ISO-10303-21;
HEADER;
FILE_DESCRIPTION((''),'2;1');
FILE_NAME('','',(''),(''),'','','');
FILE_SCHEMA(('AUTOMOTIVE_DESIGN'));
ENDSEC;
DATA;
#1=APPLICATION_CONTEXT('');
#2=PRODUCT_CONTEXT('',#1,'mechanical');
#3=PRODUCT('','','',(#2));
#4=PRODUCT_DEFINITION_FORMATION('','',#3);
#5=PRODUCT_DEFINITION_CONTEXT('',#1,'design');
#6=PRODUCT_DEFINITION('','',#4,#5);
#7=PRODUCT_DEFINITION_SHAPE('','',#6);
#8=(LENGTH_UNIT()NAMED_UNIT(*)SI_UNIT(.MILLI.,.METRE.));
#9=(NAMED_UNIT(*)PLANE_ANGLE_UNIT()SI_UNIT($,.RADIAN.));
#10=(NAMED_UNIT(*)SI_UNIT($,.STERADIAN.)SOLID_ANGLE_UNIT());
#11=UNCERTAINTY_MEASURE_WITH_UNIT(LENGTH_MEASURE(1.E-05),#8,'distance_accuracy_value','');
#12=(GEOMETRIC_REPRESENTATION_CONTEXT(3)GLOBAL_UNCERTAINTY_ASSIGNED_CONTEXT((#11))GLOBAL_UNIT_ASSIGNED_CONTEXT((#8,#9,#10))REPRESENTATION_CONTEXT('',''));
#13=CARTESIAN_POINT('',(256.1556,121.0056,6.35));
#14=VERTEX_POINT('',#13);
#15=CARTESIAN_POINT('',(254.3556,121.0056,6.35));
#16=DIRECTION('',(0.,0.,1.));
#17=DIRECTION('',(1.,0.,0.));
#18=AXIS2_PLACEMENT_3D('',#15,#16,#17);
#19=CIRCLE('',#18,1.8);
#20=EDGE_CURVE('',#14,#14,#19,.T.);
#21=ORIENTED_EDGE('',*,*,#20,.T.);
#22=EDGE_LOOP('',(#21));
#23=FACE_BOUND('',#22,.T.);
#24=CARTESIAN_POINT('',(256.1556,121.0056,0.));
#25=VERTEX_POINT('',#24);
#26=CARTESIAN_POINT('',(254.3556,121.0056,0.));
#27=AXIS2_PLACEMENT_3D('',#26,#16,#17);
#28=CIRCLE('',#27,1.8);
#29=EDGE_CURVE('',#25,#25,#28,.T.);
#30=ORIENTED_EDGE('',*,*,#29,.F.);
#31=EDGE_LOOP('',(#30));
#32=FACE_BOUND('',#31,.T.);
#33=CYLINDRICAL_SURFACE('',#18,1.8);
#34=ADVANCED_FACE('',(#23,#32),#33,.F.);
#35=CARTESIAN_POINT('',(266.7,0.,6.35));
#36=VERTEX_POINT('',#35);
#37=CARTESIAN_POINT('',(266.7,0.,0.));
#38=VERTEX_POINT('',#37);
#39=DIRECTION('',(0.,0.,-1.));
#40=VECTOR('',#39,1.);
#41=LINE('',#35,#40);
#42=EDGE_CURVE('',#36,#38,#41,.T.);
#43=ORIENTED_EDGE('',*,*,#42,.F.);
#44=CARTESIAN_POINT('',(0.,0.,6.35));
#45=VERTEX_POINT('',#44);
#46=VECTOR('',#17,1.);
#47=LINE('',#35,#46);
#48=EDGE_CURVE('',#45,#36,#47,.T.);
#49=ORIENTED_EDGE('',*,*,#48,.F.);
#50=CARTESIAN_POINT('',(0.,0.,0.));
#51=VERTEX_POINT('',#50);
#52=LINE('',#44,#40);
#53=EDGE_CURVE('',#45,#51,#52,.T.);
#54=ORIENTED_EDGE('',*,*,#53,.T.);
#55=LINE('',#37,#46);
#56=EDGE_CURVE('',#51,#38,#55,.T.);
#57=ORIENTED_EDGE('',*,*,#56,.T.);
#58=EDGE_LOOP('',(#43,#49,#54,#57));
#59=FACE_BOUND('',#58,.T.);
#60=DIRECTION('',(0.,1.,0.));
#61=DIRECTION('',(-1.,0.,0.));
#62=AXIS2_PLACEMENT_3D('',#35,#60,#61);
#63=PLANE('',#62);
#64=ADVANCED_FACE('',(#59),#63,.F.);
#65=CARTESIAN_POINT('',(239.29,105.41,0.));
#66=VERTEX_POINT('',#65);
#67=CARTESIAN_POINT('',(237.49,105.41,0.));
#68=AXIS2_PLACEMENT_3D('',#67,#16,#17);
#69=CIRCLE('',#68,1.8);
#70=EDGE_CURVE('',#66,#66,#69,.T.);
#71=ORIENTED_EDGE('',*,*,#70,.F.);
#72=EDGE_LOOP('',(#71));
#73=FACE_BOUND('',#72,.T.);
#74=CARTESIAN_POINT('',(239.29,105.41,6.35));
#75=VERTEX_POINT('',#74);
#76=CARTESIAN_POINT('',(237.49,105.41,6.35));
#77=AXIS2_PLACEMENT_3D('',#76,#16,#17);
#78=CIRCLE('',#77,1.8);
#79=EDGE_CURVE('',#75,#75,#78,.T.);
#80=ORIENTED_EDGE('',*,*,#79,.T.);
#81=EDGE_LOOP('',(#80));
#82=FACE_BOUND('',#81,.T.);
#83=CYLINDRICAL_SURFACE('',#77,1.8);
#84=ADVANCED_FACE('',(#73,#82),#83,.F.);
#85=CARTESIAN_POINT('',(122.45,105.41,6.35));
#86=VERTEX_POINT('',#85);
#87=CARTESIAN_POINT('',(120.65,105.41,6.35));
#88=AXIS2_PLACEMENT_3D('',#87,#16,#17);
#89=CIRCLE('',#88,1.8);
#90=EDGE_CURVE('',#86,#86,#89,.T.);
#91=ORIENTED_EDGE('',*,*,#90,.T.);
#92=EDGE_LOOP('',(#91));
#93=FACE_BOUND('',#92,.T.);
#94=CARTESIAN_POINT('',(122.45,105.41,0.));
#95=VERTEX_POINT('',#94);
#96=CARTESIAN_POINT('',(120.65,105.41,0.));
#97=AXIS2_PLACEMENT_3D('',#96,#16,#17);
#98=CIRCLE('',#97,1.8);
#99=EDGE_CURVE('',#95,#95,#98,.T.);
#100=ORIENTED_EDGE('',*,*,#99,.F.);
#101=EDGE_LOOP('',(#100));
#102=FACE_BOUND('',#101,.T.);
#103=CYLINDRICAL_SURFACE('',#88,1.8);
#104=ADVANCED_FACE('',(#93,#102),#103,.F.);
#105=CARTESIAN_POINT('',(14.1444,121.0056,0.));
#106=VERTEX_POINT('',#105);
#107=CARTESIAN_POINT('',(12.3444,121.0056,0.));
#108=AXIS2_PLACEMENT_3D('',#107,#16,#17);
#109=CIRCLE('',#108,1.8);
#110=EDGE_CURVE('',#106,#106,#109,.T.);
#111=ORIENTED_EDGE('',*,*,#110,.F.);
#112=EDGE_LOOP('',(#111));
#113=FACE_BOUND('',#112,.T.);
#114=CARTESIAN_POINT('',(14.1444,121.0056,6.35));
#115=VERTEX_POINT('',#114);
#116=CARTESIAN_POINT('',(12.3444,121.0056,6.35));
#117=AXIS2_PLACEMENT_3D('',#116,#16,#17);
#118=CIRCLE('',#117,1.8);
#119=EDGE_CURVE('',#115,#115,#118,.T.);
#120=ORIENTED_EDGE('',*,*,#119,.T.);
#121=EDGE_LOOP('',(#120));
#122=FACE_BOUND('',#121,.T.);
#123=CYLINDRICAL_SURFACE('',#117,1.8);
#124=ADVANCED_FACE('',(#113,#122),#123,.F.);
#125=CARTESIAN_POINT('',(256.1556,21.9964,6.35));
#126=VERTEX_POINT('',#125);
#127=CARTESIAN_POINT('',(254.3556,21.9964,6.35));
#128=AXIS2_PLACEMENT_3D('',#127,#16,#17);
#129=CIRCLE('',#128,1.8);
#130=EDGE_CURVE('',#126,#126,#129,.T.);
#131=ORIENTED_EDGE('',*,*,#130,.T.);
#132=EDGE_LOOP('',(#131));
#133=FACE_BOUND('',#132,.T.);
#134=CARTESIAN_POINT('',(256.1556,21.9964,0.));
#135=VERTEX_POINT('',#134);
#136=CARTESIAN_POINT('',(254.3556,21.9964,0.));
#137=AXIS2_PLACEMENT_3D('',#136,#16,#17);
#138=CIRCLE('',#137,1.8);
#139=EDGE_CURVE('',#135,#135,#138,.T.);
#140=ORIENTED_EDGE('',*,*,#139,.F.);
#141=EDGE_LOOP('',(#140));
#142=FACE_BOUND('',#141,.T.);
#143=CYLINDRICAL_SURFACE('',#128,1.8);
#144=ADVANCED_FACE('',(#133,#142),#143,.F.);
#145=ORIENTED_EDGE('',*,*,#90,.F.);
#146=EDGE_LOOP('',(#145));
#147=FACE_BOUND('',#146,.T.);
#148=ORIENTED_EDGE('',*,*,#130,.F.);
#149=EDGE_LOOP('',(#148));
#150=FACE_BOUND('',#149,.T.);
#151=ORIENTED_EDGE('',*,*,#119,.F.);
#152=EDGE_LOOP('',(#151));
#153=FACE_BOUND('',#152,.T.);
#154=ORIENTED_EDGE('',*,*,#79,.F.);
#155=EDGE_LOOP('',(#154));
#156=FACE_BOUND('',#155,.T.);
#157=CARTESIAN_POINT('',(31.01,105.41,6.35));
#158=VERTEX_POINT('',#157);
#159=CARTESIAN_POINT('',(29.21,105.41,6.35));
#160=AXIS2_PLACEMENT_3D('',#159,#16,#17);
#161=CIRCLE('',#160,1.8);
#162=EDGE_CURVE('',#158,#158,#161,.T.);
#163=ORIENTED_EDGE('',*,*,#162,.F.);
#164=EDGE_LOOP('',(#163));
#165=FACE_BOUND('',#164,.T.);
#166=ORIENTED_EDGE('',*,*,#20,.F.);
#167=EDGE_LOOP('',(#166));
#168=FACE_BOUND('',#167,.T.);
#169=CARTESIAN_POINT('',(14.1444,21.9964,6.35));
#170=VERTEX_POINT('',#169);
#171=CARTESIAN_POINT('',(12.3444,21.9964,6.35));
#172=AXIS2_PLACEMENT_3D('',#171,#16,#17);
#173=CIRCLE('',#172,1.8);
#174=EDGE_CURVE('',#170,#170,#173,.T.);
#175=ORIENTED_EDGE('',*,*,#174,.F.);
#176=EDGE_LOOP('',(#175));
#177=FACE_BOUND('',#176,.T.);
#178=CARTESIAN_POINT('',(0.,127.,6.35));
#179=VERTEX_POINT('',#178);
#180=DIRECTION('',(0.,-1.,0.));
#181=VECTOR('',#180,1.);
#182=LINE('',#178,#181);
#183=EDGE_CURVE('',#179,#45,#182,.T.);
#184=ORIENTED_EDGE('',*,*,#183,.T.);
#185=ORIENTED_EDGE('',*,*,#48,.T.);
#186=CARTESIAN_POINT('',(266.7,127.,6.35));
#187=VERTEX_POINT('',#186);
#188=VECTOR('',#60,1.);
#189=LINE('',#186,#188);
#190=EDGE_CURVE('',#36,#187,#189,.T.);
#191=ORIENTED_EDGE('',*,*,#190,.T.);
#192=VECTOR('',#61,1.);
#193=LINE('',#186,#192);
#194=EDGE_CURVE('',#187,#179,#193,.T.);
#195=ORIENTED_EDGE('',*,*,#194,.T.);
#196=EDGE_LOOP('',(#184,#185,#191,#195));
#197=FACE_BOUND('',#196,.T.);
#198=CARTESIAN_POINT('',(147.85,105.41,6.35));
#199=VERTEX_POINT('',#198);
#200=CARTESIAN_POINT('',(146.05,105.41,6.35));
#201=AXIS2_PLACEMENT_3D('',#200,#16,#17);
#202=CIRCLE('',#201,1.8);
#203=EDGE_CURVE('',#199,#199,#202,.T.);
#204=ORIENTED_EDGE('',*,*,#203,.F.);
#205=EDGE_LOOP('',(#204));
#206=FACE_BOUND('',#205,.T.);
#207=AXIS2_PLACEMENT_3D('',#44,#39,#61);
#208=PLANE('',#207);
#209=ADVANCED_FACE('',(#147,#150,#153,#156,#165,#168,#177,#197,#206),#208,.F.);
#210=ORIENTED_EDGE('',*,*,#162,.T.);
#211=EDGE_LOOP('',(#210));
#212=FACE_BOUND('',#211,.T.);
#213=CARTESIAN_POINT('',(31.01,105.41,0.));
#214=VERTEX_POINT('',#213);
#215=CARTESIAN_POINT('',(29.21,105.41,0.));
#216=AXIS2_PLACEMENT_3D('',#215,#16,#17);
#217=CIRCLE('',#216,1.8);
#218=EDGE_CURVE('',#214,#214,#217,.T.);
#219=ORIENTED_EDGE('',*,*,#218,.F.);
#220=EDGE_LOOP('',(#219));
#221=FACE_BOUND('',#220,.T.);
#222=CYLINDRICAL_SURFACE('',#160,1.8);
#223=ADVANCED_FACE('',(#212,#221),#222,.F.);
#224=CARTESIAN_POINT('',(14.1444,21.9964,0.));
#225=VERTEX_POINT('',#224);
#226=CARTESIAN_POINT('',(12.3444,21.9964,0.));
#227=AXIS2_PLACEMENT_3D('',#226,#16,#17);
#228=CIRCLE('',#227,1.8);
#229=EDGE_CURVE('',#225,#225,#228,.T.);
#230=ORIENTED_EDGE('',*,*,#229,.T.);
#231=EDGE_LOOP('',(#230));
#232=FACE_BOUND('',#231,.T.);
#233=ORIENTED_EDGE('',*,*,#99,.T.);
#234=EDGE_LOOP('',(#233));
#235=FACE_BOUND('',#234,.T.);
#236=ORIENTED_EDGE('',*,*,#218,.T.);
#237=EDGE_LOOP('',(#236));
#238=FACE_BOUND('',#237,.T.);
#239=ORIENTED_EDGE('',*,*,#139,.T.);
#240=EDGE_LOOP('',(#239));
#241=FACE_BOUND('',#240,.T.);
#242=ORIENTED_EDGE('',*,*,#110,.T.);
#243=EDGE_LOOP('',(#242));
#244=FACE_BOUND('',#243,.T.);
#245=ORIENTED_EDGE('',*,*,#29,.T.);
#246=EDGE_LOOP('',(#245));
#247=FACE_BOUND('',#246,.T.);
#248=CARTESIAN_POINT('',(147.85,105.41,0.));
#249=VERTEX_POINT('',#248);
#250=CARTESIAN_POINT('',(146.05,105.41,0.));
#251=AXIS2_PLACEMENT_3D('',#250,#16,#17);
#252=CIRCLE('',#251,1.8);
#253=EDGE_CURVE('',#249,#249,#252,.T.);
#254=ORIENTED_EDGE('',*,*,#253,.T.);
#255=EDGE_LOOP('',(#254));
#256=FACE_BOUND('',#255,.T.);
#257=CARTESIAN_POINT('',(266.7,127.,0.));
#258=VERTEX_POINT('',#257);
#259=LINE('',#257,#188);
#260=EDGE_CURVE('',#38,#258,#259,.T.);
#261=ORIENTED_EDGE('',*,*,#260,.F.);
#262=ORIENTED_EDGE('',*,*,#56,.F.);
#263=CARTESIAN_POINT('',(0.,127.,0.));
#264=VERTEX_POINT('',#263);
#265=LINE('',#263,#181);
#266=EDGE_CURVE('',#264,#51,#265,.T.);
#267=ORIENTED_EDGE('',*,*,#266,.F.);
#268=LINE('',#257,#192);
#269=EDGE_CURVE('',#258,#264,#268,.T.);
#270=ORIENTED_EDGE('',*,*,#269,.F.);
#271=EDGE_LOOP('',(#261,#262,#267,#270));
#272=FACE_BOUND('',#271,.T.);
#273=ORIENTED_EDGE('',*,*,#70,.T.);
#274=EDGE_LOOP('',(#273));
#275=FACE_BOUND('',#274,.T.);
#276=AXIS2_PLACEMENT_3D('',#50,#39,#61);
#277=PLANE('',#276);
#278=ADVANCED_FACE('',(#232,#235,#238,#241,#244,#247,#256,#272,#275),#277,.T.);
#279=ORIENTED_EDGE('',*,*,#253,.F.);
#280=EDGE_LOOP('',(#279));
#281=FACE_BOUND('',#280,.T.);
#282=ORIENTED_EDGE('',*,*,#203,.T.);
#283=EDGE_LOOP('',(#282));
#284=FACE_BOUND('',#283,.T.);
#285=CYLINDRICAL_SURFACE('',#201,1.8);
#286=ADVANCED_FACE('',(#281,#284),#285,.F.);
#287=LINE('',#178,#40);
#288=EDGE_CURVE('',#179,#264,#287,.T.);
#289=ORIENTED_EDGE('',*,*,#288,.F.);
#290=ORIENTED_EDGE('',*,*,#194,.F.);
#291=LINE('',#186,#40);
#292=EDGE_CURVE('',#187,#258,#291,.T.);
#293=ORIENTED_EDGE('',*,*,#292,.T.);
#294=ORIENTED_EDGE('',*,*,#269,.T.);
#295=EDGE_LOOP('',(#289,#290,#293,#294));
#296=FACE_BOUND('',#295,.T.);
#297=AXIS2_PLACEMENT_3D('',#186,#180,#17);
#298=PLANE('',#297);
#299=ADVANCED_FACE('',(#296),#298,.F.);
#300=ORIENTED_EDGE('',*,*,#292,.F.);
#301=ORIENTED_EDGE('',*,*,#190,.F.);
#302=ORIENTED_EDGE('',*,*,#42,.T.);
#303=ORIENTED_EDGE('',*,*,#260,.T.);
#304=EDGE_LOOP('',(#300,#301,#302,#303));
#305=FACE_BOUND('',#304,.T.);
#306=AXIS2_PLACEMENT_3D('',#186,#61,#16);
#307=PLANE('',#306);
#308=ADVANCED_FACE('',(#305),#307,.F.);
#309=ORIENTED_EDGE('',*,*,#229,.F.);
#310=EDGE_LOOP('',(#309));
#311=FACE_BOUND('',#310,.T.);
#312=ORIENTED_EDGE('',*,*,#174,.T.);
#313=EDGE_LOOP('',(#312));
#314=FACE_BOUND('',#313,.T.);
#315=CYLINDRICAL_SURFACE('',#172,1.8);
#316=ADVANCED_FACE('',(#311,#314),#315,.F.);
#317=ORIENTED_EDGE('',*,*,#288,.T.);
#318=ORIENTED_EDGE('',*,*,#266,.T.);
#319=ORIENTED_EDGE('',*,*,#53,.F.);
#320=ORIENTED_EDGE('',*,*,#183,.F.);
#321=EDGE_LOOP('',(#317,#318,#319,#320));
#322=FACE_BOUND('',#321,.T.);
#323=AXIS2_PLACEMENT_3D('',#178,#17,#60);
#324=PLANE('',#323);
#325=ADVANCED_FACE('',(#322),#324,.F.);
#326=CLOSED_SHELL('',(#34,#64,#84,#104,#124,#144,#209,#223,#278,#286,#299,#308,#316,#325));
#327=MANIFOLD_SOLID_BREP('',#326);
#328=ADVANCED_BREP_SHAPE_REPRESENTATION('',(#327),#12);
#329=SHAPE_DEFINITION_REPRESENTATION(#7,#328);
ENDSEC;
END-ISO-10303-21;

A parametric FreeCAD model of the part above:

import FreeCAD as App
import Part
import Sketcher

V = App.Vector
Q = App.Units.Quantity

doc = App.newDocument("Part")
body = doc.addObject("PartDesign::Body", "Body")

sketch1 = body.newObject("Sketcher::SketchObject", "Sketch")
sketch1.AttachmentSupport = (doc.getObject("XY_Plane"), [""])
sketch1.MapMode = "FlatFace"
sketch1.addGeometry([
    Part.LineSegment(V(0, 127, 0), V(0, 0, 0)),
    Part.LineSegment(V(0, 0, 0), V(266.7, 0, 0)),
    Part.LineSegment(V(266.7, 0, 0), V(266.7, 127, 0)),
    Part.LineSegment(V(266.7, 127, 0), V(0, 127, 0)),
], False)
sketch1.addConstraint([
    Sketcher.Constraint("Coincident", 0, 2, 1, 1),
    Sketcher.Constraint("Coincident", 1, 2, 2, 1),
    Sketcher.Constraint("Coincident", 2, 2, 3, 1),
    Sketcher.Constraint("Coincident", 3, 2, 0, 1),
    Sketcher.Constraint("Vertical", 0),
    Sketcher.Constraint("Horizontal", 1),
    Sketcher.Constraint("Vertical", 2),
    Sketcher.Constraint("Horizontal", 3),
    Sketcher.Constraint("Coincident", 0, 2, -1, 1),
    Sketcher.Constraint("DistanceY", 0, 2, 0, 1, Q("5 in")),
    Sketcher.Constraint("DistanceX", 1, 1, 1, 2, Q("10.5 in")),
])
pad1 = body.newObject("PartDesign::Pad", "Pad")
pad1.Profile = sketch1
pad1.Length = Q("0.25 in")

sketch2 = body.newObject("Sketcher::SketchObject", "Sketch001")
sketch2.AttachmentSupport = (doc.getObject("XY_Plane"), [""])
sketch2.MapMode = "FlatFace"
sketch2.AttachmentOffset = App.Placement(V(0, 0, 0.25 * 25.4), App.Rotation())
sketch2.addGeometry([
    Part.Circle(V(12.3444, 121.0056, 0), V(0, 0, 1), 1.8),
    Part.Circle(V(12.3444, 21.9964, 0), V(0, 0, 1), 1.8),
    Part.Circle(V(254.3556, 21.9964, 0), V(0, 0, 1), 1.8),
    Part.Circle(V(254.3556, 121.0056, 0), V(0, 0, 1), 1.8),
], False)
sketch2.addConstraint([
    Sketcher.Constraint("Equal", 0, 1),
    Sketcher.Constraint("Equal", 1, 2),
    Sketcher.Constraint("Equal", 2, 3),
    Sketcher.Constraint("Horizontal", 1, 3, 2, 3),
    Sketcher.Constraint("Horizontal", 0, 3, 3, 3),
    Sketcher.Constraint("Vertical", 0, 3, 1, 3),
    Sketcher.Constraint("Vertical", 2, 3, 3, 3),
    Sketcher.Constraint("Diameter", 0, Q("3.6 mm")),
    Sketcher.Constraint("DistanceX", -1, 1, 0, 3, Q("0.486 in")),
    Sketcher.Constraint("DistanceY", -1, 1, 0, 3, Q("4.764 in")),
    Sketcher.Constraint("DistanceY", -1, 1, 1, 3, Q("0.866 in")),
    Sketcher.Constraint("DistanceX", -1, 1, 2, 3, Q("10.014 in")),
])
doc.recompute()
hole = body.newObject("PartDesign::Hole", "Hole")
hole.Profile = sketch2
hole.ThreadType = "None"
hole.Diameter = 3.6
hole.DepthType = "ThroughAll"

sketch3 = body.newObject("Sketcher::SketchObject", "Sketch002")
sketch3.AttachmentSupport = (doc.getObject("XY_Plane"), [""])
sketch3.MapMode = "FlatFace"
sketch3.AttachmentOffset = App.Placement(V(0, 0, 0.25 * 25.4), App.Rotation())
sketch3.addGeometry([
    Part.Circle(V(29.21, 105.41, 0), V(0, 0, 1), 1.8),
    Part.Circle(V(120.65, 105.41, 0), V(0, 0, 1), 1.8),
    Part.Circle(V(146.05, 105.41, 0), V(0, 0, 1), 1.8),
    Part.Circle(V(237.49, 105.41, 0), V(0, 0, 1), 1.8),
], False)
sketch3.addConstraint([
    Sketcher.Constraint("Equal", 0, 1),
    Sketcher.Constraint("Equal", 1, 2),
    Sketcher.Constraint("Equal", 2, 3),
    Sketcher.Constraint("Horizontal", 0, 3, 1, 3),
    Sketcher.Constraint("Horizontal", 1, 3, 2, 3),
    Sketcher.Constraint("Horizontal", 2, 3, 3, 3),
    Sketcher.Constraint("DistanceX", 1, 3, 2, 3, Q("1 in")),
    Sketcher.Constraint("DistanceX", 0, 3, 1, 3, Q("3.6 in")),
    Sketcher.Constraint("DistanceX", 2, 3, 3, 3, Q("3.6 in")),
    Sketcher.Constraint("Diameter", 0, Q("3.6 mm")),
    Sketcher.Constraint("DistanceX", -1, 1, 0, 3, Q("1.15 in")),
    Sketcher.Constraint("DistanceY", -1, 1, 0, 3, Q("4.15 in")),
])
doc.recompute()
hole2 = body.newObject("PartDesign::Hole", "Hole001")
hole2.Profile = sketch3
hole2.ThreadType = "None"
hole2.Diameter = 3.6
hole2.DepthType = "ThroughAll"

doc.recompute()
